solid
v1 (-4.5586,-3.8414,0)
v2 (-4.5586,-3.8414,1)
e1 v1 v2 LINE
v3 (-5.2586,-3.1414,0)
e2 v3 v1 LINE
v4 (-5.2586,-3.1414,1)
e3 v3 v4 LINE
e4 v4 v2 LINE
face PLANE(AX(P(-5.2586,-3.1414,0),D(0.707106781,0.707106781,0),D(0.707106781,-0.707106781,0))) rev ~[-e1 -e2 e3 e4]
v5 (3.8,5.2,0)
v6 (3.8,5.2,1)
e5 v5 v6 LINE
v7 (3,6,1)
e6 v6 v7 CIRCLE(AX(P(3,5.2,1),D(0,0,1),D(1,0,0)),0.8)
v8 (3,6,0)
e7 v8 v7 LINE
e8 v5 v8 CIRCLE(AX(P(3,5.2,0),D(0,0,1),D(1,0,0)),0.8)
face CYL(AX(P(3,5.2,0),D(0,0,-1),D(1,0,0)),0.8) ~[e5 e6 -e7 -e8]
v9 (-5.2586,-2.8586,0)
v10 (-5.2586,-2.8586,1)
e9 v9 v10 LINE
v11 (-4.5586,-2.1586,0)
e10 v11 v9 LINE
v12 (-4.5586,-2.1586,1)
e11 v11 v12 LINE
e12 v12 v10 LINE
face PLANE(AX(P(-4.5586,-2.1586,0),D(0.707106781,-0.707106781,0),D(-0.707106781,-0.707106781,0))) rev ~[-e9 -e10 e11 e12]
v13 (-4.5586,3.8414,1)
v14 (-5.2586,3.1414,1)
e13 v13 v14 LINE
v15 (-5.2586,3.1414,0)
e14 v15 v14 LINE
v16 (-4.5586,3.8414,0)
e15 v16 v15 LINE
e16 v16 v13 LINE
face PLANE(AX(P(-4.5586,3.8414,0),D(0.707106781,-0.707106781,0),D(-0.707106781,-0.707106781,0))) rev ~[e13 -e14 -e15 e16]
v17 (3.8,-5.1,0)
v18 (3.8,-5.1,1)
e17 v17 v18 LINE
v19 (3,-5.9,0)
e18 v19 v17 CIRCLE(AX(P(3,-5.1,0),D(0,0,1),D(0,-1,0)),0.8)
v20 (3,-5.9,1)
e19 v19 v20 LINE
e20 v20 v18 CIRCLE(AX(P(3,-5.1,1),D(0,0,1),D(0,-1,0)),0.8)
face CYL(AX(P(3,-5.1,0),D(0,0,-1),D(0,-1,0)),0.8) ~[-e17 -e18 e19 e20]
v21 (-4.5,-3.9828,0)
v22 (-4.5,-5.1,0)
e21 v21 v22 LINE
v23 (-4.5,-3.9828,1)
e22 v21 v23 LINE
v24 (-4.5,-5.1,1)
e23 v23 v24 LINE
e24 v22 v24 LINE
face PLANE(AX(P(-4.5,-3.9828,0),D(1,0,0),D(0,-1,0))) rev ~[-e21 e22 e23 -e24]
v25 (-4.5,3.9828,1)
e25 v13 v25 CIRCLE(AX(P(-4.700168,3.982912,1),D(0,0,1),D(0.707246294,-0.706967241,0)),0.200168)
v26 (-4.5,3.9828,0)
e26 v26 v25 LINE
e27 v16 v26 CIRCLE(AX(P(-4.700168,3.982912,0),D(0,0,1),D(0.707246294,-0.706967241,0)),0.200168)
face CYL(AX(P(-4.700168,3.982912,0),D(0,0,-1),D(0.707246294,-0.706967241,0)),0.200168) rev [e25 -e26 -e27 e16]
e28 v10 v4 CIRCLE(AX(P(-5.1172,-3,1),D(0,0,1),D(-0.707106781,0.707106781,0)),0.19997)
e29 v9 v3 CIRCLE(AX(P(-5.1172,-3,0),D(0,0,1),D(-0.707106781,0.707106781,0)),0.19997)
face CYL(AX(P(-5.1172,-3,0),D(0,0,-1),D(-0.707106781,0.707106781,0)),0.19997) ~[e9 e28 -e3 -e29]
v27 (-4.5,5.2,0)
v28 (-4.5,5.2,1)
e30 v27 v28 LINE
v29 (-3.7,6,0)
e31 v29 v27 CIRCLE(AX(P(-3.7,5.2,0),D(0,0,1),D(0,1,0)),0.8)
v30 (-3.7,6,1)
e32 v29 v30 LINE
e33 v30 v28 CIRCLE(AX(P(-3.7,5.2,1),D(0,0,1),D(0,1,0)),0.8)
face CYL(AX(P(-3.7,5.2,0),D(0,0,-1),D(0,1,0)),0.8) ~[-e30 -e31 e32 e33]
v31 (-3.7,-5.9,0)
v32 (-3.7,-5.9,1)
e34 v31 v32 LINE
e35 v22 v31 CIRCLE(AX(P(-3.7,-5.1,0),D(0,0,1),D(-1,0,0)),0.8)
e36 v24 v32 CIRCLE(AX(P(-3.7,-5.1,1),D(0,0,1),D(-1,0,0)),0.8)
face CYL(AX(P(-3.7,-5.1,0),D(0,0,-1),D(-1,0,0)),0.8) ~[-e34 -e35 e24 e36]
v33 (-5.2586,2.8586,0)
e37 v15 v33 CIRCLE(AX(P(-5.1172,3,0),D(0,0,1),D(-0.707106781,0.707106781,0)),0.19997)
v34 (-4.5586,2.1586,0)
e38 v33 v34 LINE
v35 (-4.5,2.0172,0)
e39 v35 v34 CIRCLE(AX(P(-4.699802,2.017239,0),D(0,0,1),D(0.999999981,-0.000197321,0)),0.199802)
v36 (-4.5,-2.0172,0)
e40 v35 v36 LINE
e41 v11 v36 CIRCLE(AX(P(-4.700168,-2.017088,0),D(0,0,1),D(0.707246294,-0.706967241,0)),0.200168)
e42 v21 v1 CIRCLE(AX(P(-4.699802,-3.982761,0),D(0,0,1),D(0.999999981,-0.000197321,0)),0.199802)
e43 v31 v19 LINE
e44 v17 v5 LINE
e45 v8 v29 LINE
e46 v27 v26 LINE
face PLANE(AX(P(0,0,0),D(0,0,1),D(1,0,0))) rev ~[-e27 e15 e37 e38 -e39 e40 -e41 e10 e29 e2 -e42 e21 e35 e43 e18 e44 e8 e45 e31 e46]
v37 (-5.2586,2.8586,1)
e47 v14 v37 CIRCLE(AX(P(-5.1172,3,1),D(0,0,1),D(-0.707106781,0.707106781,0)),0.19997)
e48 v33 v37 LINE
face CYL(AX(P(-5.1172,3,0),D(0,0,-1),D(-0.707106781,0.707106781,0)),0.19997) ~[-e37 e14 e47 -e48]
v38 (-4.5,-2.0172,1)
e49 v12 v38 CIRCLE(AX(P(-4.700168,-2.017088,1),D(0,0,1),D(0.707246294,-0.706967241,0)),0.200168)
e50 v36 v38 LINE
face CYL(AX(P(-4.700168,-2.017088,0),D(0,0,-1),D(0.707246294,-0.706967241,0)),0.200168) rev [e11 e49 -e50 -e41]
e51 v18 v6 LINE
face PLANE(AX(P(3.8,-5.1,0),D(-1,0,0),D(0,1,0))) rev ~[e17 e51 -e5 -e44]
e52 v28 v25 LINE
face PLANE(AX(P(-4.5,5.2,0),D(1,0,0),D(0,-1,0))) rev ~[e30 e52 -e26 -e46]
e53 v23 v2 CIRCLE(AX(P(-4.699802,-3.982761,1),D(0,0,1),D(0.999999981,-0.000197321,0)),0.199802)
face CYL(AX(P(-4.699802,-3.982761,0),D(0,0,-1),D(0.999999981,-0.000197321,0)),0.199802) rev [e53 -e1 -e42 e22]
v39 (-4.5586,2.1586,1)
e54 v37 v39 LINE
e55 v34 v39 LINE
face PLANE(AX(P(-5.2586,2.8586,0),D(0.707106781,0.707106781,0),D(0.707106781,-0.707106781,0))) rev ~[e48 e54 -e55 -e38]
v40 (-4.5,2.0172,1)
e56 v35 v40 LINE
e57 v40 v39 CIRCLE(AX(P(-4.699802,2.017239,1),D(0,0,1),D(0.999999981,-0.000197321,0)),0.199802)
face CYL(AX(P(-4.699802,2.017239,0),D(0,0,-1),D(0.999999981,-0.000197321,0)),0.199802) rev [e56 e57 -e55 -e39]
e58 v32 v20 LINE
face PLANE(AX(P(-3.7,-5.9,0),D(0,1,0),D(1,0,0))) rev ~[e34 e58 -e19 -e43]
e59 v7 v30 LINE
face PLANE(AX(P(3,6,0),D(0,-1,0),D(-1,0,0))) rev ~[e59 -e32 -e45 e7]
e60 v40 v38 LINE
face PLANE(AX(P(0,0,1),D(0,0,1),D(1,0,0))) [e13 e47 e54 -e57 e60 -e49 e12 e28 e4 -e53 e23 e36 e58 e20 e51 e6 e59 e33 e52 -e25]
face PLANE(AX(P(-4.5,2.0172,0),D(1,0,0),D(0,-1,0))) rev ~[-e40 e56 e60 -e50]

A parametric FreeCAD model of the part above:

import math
import FreeCAD as App
import Part
import Sketcher

V = App.Vector

doc = App.newDocument("Part")
body = doc.addObject("PartDesign::Body", "Body")

# Sketch on XY plane
sketch1 = body.newObject("Sketcher::SketchObject", "Sketch")
sketch1.AttachmentSupport = (doc.getObject("XY_Plane"), [""])
sketch1.MapMode = "FlatFace"
sketch1.addGeometry(Part.LineSegment(V(-4.5586, 3.8414, 0), V(-5.2586, 3.1414, 0)), False)
sketch1.addGeometry(Part.ArcOfCircle(Part.Circle(V(-5.1172, 3, 0), V(0, 0, 1), 0.19997), math.radians(135), math.radians(225)), False)
sketch1.addGeometry(Part.LineSegment(V(-5.2586, 2.8586, 0), V(-4.5586, 2.1586, 0)), False)
sketch1.addGeometry(Part.ArcOfCircle(Part.Circle(V(-4.7, 2.0172, 0), V(0, 0, 1), 0.2), math.radians(0), math.radians(45)), False)
sketch1.addGeometry(Part.LineSegment(V(-4.5, 2.0172, 0), V(-4.5, -2.0172, 0)), False)
sketch1.addGeometry(Part.ArcOfCircle(Part.Circle(V(-4.7, -2.0172, 0), V(0, 0, 1), 0.19997), math.radians(-45), math.radians(0)), False)
sketch1.addGeometry(Part.LineSegment(V(-4.5586, -2.1586, 0), V(-5.2586, -2.8586, 0)), False)
sketch1.addGeometry(Part.ArcOfCircle(Part.Circle(V(-5.1172, -3, 0), V(0, 0, 1), 0.19997), math.radians(135), math.radians(225)), False)
sketch1.addGeometry(Part.LineSegment(V(-5.2586, -3.1414, 0), V(-4.5586, -3.8414, 0)), False)
sketch1.addGeometry(Part.ArcOfCircle(Part.Circle(V(-4.7, -3.9828, 0), V(0, 0, 1), 0.2), math.radians(0), math.radians(45)), False)
sketch1.addGeometry(Part.LineSegment(V(-4.5, -3.9828, 0), V(-4.5, -5.1, 0)), False)
sketch1.addGeometry(Part.ArcOfCircle(Part.Circle(V(-3.7, -5.1, 0), V(0, 0, 1), 0.8), math.radians(180), math.radians(270)), False)
sketch1.addGeometry(Part.LineSegment(V(-3.7, -5.9, 0), V(3, -5.9, 0)), False)
sketch1.addGeometry(Part.ArcOfCircle(Part.Circle(V(3, -5.1, 0), V(0, 0, 1), 0.8), math.radians(-90), math.radians(0)), False)
sketch1.addGeometry(Part.LineSegment(V(3.8, -5.1, 0), V(3.8, 5.2, 0)), False)
sketch1.addGeometry(Part.ArcOfCircle(Part.Circle(V(3, 5.2, 0), V(0, 0, 1), 0.8), math.radians(0), math.radians(90)), False)
sketch1.addGeometry(Part.LineSegment(V(3, 6, 0), V(-3.7, 6, 0)), False)
sketch1.addGeometry(Part.ArcOfCircle(Part.Circle(V(-3.7, 5.2, 0), V(0, 0, 1), 0.8), math.radians(90), math.radians(180)), False)
sketch1.addGeometry(Part.LineSegment(V(-4.5, 5.2, 0), V(-4.5, 3.9828, 0)), False)
sketch1.addGeometry(Part.ArcOfCircle(Part.Circle(V(-4.7, 3.9828, 0), V(0, 0, 1), 0.19997), math.radians(-45), math.radians(0)), False)
sketch1.addConstraint(Sketcher.Constraint("Tangent", 0, 2, 1, 1))
sketch1.addConstraint(Sketcher.Constraint("Tangent", 1, 2, 2, 1))
sketch1.addConstraint(Sketcher.Constraint("Tangent", 2, 2, 3, 2))
sketch1.addConstraint(Sketcher.Constraint("Tangent", 3, 1, 4, 1))
sketch1.addConstraint(Sketcher.Constraint("Tangent", 4, 2, 5, 2))
sketch1.addConstraint(Sketcher.Constraint("Tangent", 5, 1, 6, 1))
sketch1.addConstraint(Sketcher.Constraint("Tangent", 6, 2, 7, 1))
sketch1.addConstraint(Sketcher.Constraint("Tangent", 7, 2, 8, 1))
sketch1.addConstraint(Sketcher.Constraint("Tangent", 8, 2, 9, 2))
sketch1.addConstraint(Sketcher.Constraint("Tangent", 9, 1, 10, 1))
sketch1.addConstraint(Sketcher.Constraint("Tangent", 10, 2, 11, 1))
sketch1.addConstraint(Sketcher.Constraint("Tangent", 11, 2, 12, 1))
sketch1.addConstraint(Sketcher.Constraint("Tangent", 12, 2, 13, 1))
sketch1.addConstraint(Sketcher.Constraint("Tangent", 13, 2, 14, 1))
sketch1.addConstraint(Sketcher.Constraint("Tangent", 14, 2, 15, 1))
sketch1.addConstraint(Sketcher.Constraint("Tangent", 15, 2, 16, 1))
sketch1.addConstraint(Sketcher.Constraint("Tangent", 16, 2, 17, 1))
sketch1.addConstraint(Sketcher.Constraint("Tangent", 17, 2, 18, 1))
sketch1.addConstraint(Sketcher.Constraint("Tangent", 18, 2, 19, 2))
sketch1.addConstraint(Sketcher.Constraint("Tangent", 19, 1, 0, 1))
sketch1.addConstraint(Sketcher.Constraint("Vertical", 4))
sketch1.addConstraint(Sketcher.Constraint("Vertical", 10))
sketch1.addConstraint(Sketcher.Constraint("Horizontal", 12))
sketch1.addConstraint(Sketcher.Constraint("Vertical", 14))
sketch1.addConstraint(Sketcher.Constraint("Horizontal", 16))
sketch1.addConstraint(Sketcher.Constraint("Vertical", 18))
sketch1.addConstraint(Sketcher.Constraint("Equal", 1, 3))
sketch1.addConstraint(Sketcher.Constraint("Equal", 3, 5))
sketch1.addConstraint(Sketcher.Constraint("Equal", 5, 7))
sketch1.addConstraint(Sketcher.Constraint("Equal", 7, 9))
sketch1.addConstraint(Sketcher.Constraint("Equal", 11, 13))
sketch1.addConstraint(Sketcher.Constraint("Equal", 13, 15))
sketch1.addConstraint(Sketcher.Constraint("Equal", 15, 17))
sketch1.addConstraint(Sketcher.Constraint("Equal", 9, 19))
sketch1.addConstraint(Sketcher.Constraint("Symmetric", 1, 3, 7, 3, -1))
sketch1.addConstraint(Sketcher.Constraint("Symmetric", 9, 3, 19, 3, -1))
sketch1.addConstraint(Sketcher.Constraint("Perpendicular", 0, 2))
sketch1.addConstraint(Sketcher.Constraint("Perpendicular", 2, 6))
sketch1.addConstraint(Sketcher.Constraint("Perpendicular", 6, 8))
sketch1.addConstraint(Sketcher.Constraint("Vertical", 5, 3, 9, 3))
sketch1.addConstraint(Sketcher.Constraint("Radius", 1, 0.2))
sketch1.addConstraint(Sketcher.Constraint("Radius", 11, 0.8))
sketch1.addConstraint(Sketcher.Constraint("DistanceX", 12, 1, 12, 2, 6.7))
sketch1.addConstraint(Sketcher.Constraint("DistanceY", 14, 1, 14, 2, 10.3))
sketch1.addConstraint(Sketcher.Constraint("DistanceY", -1, 1, 1, 3, 3.0))
sketch1.addConstraint(Sketcher.Constraint("DistanceX", -1, 1, 13, 3, 3.0))
sketch1.addConstraint(Sketcher.Constraint("DistanceY", -1, 1, 15, 2, 6.0))
sketch1.addConstraint(Sketcher.Constraint("DistanceX", 1, 2, 2, 2, 0.7))
pad1 = body.newObject("PartDesign::Pad", "Pad")
pad1.Profile = sketch1
pad1.Length = 1

doc.recompute()
